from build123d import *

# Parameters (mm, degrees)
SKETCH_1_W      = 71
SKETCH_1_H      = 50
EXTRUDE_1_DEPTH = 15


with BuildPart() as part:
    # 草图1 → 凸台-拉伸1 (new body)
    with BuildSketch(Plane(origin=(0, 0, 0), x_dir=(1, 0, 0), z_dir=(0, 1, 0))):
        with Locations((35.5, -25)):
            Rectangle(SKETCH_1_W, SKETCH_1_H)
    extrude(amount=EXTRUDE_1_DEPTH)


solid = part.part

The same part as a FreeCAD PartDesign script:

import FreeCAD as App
import Part
import Sketcher

V = App.Vector

doc = App.newDocument("Part")
body = doc.addObject("PartDesign::Body", "Body")

sketch1 = doc.addObject("Sketcher::SketchObject", "Sketch")
body.addObject(sketch1)
sketch1.AttachmentSupport = (doc.XZ_Plane, [""])
sketch1.MapMode = "FlatFace"
sketch1.addGeometry([
    Part.LineSegment(V(0, 0, 0), V(0, 50, 0)),
    Part.LineSegment(V(0, 50, 0), V(71, 50, 0)),
    Part.LineSegment(V(71, 50, 0), V(71, 0, 0)),
    Part.LineSegment(V(71, 0, 0), V(0, 0, 0)),
], False)
sketch1.addConstraint([
    Sketcher.Constraint("Coincident", 0, 2, 1, 1),
    Sketcher.Constraint("Coincident", 1, 2, 2, 1),
    Sketcher.Constraint("Coincident", 2, 2, 3, 1),
    Sketcher.Constraint("Coincident", 3, 2, 0, 1),
    Sketcher.Constraint("Vertical", 0),
    Sketcher.Constraint("Horizontal", 1),
    Sketcher.Constraint("Vertical", 2),
    Sketcher.Constraint("Horizontal", 3),
    Sketcher.Constraint("Coincident", 3, 2, -1, 1),
    Sketcher.Constraint("DistanceX", 1, 1, 1, 2, 71.0),
    Sketcher.Constraint("DistanceY", 0, 1, 0, 2, 50.0),
])
pad1 = doc.addObject("PartDesign::Pad", "Pad")
body.addObject(pad1)
pad1.Profile = sketch1
pad1.Length = 15
pad1.Reversed = True

doc.recompute()
